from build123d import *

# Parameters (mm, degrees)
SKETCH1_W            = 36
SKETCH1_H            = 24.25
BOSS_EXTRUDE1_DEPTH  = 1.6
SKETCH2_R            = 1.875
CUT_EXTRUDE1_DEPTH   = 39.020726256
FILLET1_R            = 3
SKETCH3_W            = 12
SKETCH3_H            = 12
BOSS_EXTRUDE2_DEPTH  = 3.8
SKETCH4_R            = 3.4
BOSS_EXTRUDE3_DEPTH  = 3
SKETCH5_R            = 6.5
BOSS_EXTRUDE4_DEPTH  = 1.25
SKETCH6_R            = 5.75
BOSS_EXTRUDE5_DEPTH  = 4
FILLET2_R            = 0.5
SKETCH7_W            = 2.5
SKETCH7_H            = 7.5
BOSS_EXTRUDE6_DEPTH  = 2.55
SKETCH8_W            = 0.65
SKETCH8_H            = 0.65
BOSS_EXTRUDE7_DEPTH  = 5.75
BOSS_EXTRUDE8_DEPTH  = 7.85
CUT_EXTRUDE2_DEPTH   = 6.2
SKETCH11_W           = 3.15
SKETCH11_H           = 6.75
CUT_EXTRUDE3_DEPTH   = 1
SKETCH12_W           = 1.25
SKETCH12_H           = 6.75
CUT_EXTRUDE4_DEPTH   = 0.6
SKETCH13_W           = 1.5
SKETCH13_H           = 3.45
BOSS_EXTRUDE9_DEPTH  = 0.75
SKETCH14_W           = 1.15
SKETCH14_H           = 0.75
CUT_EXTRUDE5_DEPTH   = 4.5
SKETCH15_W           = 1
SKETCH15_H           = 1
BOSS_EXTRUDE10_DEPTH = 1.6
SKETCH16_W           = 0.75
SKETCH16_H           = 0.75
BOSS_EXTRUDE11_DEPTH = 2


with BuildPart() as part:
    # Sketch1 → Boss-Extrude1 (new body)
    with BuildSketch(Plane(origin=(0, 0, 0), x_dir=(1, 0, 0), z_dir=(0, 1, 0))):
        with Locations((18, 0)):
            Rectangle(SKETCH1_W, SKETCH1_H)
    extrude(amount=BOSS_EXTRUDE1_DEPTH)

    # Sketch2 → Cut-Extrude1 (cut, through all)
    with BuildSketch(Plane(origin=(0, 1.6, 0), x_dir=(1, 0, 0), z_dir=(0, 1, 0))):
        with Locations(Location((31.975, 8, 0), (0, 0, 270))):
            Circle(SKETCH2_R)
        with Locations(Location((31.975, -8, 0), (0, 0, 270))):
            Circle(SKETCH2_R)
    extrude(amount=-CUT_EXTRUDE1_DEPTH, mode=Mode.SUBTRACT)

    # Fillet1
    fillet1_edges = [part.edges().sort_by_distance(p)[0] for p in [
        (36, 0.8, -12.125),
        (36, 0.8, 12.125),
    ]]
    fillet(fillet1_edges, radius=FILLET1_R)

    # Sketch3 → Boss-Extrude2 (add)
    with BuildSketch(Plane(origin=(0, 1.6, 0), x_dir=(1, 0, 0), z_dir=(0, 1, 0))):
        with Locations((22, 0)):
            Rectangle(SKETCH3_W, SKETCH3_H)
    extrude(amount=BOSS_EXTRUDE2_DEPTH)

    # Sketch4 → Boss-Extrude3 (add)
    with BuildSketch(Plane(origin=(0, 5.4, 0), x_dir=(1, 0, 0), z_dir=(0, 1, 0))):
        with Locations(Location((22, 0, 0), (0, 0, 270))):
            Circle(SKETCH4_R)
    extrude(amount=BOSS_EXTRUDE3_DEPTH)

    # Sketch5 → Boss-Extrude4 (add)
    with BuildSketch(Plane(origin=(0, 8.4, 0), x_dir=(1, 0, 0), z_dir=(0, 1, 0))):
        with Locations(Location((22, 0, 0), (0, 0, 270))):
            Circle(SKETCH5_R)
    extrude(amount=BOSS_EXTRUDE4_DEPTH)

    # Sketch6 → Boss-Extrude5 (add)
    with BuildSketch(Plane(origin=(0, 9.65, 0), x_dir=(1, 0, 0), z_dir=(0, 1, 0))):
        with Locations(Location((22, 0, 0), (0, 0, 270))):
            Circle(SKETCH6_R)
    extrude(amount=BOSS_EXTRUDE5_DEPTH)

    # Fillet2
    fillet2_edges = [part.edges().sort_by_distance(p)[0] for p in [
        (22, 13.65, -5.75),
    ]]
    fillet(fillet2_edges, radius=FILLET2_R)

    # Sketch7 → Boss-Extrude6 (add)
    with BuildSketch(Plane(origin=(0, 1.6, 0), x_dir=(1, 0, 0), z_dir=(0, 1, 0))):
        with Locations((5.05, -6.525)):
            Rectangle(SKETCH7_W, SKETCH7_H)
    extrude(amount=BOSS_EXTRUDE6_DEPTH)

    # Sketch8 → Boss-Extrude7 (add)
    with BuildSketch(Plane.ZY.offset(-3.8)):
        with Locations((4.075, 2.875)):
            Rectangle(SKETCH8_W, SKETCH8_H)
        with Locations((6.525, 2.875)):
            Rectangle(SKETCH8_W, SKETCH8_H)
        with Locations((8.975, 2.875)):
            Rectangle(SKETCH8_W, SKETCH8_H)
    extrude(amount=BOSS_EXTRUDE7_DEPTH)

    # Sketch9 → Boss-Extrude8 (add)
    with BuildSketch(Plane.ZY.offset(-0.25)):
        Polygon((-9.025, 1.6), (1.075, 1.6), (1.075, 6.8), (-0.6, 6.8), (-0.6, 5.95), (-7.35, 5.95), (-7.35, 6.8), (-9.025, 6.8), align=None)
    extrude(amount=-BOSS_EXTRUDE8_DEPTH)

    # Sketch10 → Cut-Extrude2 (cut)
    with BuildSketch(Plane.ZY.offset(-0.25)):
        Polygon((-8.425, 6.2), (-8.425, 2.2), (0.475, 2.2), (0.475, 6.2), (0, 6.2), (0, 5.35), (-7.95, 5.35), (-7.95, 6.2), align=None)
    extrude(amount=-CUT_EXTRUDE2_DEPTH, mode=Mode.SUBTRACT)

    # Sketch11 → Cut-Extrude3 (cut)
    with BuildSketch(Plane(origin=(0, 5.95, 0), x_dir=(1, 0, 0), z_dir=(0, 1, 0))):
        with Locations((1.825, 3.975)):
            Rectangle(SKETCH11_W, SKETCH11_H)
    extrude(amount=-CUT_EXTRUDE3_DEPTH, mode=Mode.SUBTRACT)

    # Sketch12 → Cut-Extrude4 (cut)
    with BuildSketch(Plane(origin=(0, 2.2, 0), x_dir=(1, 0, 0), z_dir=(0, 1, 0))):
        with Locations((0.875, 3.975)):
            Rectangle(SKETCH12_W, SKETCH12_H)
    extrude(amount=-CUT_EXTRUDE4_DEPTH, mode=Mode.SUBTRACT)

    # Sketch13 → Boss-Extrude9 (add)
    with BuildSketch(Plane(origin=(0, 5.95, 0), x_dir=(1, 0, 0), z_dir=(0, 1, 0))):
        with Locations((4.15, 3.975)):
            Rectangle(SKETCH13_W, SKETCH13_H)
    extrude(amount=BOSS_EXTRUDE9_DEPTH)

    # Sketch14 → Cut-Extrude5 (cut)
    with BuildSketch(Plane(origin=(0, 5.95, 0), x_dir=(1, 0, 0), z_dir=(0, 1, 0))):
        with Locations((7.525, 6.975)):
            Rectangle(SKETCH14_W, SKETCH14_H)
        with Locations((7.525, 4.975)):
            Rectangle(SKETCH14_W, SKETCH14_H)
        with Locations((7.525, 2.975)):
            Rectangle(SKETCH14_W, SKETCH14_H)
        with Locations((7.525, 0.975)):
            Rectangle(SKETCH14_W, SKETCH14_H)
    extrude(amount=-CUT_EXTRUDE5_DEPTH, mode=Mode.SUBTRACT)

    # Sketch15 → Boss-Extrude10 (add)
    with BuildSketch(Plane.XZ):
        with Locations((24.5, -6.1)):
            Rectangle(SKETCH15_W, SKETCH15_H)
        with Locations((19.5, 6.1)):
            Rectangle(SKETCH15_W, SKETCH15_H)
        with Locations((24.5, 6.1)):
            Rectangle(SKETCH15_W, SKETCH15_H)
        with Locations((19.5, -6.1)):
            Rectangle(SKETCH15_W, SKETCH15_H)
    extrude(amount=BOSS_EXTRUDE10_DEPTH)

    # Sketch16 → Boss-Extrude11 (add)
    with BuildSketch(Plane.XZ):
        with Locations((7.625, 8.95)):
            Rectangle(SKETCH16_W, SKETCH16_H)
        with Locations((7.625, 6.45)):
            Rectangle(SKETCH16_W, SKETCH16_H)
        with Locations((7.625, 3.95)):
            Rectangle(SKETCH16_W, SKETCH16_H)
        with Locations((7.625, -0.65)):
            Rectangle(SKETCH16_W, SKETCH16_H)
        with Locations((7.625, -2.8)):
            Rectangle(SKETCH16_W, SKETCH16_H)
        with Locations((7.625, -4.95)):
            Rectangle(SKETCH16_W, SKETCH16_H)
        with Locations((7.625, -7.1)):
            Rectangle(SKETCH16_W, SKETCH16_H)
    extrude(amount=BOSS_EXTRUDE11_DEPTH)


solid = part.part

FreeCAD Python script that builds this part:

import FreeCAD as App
import Part
import Sketcher
from FreeCAD import Vector
Q = App.Units.Quantity


def edges_at(feature, points):
    """Names of the edges that pass closest to the given points."""
    edges = feature.Shape.Edges
    near = lambda p: min(range(len(edges)), key=lambda i: edges[i].distToShape(Part.Vertex(*p))[0])
    return sorted({f"Edge{near(p) + 1}" for p in points})


def add_polygon(sketch, points):
    """Adds a closed chain of lines whose ends are joined by coincident constraints."""
    first, n = sketch.GeometryCount, len(points)
    for a, b in zip(points, points[1:] + points[:1]):
        sketch.addGeometry(Part.LineSegment(App.Vector(*a, 0), App.Vector(*b, 0)), False)
    for i in range(n):
        sketch.addConstraint(Sketcher.Constraint("Coincident", first + i, 2, first + (i + 1) % n, 1))

doc = App.newDocument("Part")
body = doc.addObject("PartDesign::Body", "Body")

sketch1 = doc.addObject("Sketcher::SketchObject", "Sketch")
body.addObject(sketch1)
sketch1.AttachmentSupport = (doc.XZ_Plane, [""])
sketch1.MapMode = "FlatFace"
add_polygon(sketch1, [(0, -12), (0, 12), (36, 12), (36, -12)])
sketch1.addConstraint(Sketcher.Constraint("Vertical", 0))
sketch1.addConstraint(Sketcher.Constraint("Horizontal", 1))
sketch1.addConstraint(Sketcher.Constraint("Vertical", 2))
sketch1.addConstraint(Sketcher.Constraint("Horizontal", 3))
sketch1.addConstraint(Sketcher.Constraint("Symmetric", 0, 2, 3, 2, -1, 1))
sketch1.addConstraint(Sketcher.Constraint("DistanceX", 1, 1, 1, 2, Q("36 mm")))
sketch1.addConstraint(Sketcher.Constraint("DistanceY", 0, 1, 0, 2, Q("24.25 mm")))
pad1 = doc.addObject("PartDesign::Pad", "Pad")
body.addObject(pad1)
pad1.Profile = sketch1
pad1.Length = 1.6
pad1.Reversed = True

sketch2 = doc.addObject("Sketcher::SketchObject", "Sketch001")
body.addObject(sketch2)
sketch2.AttachmentSupport = (doc.XZ_Plane, [""])
sketch2.MapMode = "FlatFace"
sketch2.AttachmentOffset = App.Placement(Vector(0, 0, -1.6), App.Rotation())
sketch2.addGeometry(Part.Circle(Vector(32, -8, 0), Vector(0, 0, 1), 1.9), False)
sketch2.addGeometry(Part.Circle(Vector(32, 8, 0), Vector(0, 0, 1), 1.9), False)
sketch2.addConstraint(Sketcher.Constraint("Equal", 0, 1))
sketch2.addConstraint(Sketcher.Constraint("Symmetric", 0, 3, 1, 3, -1))
sketch2.addConstraint(Sketcher.Constraint("Diameter", 0, Q("3.75 mm")))
sketch2.addConstraint(Sketcher.Constraint("DistanceY", 0, 3, -1, 1, Q("8 mm")))
sketch2.addConstraint(Sketcher.Constraint("DistanceX", -1, 1, 0, 3, Q("31.975 mm")))
pocket1 = doc.addObject("PartDesign::Pocket", "Pocket")
body.addObject(pocket1)
pocket1.Profile = sketch2
pocket1.Type = "ThroughAll"
pocket1.Reversed = True
doc.recompute()

fillet = doc.addObject("PartDesign::Fillet", "Fillet")
body.addObject(fillet)
fillet.Base = (pocket1, edges_at(pocket1, [(36, 0.8, -12.125), (36, 0.8, 12.125)]))
fillet.Radius = 3

sketch3 = doc.addObject("Sketcher::SketchObject", "Sketch002")
body.addObject(sketch3)
sketch3.AttachmentSupport = (doc.XZ_Plane, [""])
sketch3.MapMode = "FlatFace"
sketch3.AttachmentOffset = App.Placement(Vector(0, 0, -1.6), App.Rotation())
add_polygon(sketch3, [(16, -6), (16, 6), (28, 6), (28, -6)])
sketch3.addConstraint(Sketcher.Constraint("Vertical", 0))
sketch3.addConstraint(Sketcher.Constraint("Horizontal", 1))
sketch3.addConstraint(Sketcher.Constraint("Vertical", 2))
sketch3.addConstraint(Sketcher.Constraint("Horizontal", 3))
sketch3.addConstraint(Sketcher.Constraint("Equal", 3, 0))
sketch3.addConstraint(Sketcher.Constraint("DistanceX", 1, 1, 1, 2, Q("12 mm")))
sketch3.addConstraint(Sketcher.Constraint("DistanceX", -1, 1, 0, 2, Q("16 mm")))
sketch3.addConstraint(Sketcher.Constraint("DistanceY", -1, 1, 0, 2, Q("6 mm")))
pad2 = doc.addObject("PartDesign::Pad", "Pad001")
body.addObject(pad2)
pad2.Profile = sketch3
pad2.Length = 3.8
pad2.Reversed = True

sketch4 = doc.addObject("Sketcher::SketchObject", "Sketch003")
body.addObject(sketch4)
sketch4.AttachmentSupport = (doc.XZ_Plane, [""])
sketch4.MapMode = "FlatFace"
sketch4.AttachmentOffset = App.Placement(Vector(0, 0, -5.4), App.Rotation())
sketch4.addGeometry(Part.Circle(Vector(22, 0, 0), Vector(0, 0, 1), 3.4), False)
sketch4.addConstraint(Sketcher.Constraint("PointOnObject", 0, 3, -1))
sketch4.addConstraint(Sketcher.Constraint("Diameter", 0, Q("6.8 mm")))
sketch4.addConstraint(Sketcher.Constraint("DistanceX", -1, 1, 0, 3, Q("22 mm")))
pad3 = doc.addObject("PartDesign::Pad", "Pad002")
body.addObject(pad3)
pad3.Profile = sketch4
pad3.Length = 3
pad3.Reversed = True

sketch5 = doc.addObject("Sketcher::SketchObject", "Sketch004")
body.addObject(sketch5)
sketch5.AttachmentSupport = (doc.XZ_Plane, [""])
sketch5.MapMode = "FlatFace"
sketch5.AttachmentOffset = App.Placement(Vector(0, 0, -8.4), App.Rotation())
sketch5.addGeometry(Part.Circle(Vector(22, 0, 0), Vector(0, 0, 1), 6), False)
sketch5.addConstraint(Sketcher.Constraint("PointOnObject", 0, 3, -1))
sketch5.addConstraint(Sketcher.Constraint("Diameter", 0, Q("13 mm")))
sketch5.addConstraint(Sketcher.Constraint("DistanceX", -1, 1, 0, 3, Q("22 mm")))
pad4 = doc.addObject("PartDesign::Pad", "Pad003")
body.addObject(pad4)
pad4.Profile = sketch5
pad4.Length = 1.25
pad4.Reversed = True

sketch6 = doc.addObject("Sketcher::SketchObject", "Sketch005")
body.addObject(sketch6)
sketch6.AttachmentSupport = (doc.XZ_Plane, [""])
sketch6.MapMode = "FlatFace"
sketch6.AttachmentOffset = App.Placement(Vector(0, 0, -9.65), App.Rotation())
sketch6.addGeometry(Part.Circle(Vector(22, 0, 0), Vector(0, 0, 1), 6), False)
sketch6.addConstraint(Sketcher.Constraint("PointOnObject", 0, 3, -1))
sketch6.addConstraint(Sketcher.Constraint("Diameter", 0, Q("11.5 mm")))
sketch6.addConstraint(Sketcher.Constraint("DistanceX", -1, 1, 0, 3, Q("22 mm")))
pad5 = doc.addObject("PartDesign::Pad", "Pad004")
body.addObject(pad5)
pad5.Profile = sketch6
pad5.Length = 4
pad5.Reversed = True
doc.recompute()

fillet2 = doc.addObject("PartDesign::Fillet", "Fillet001")
body.addObject(fillet2)
fillet2.Base = (pad5, edges_at(pad5, [(22, 13.65, -5.75)]))
fillet2.Radius = 0.5

sketch7 = doc.addObject("Sketcher::SketchObject", "Sketch006")
body.addObject(sketch7)
sketch7.AttachmentSupport = (doc.XZ_Plane, [""])
sketch7.MapMode = "FlatFace"
sketch7.AttachmentOffset = App.Placement(Vector(0, 0, -1.6), App.Rotation())
add_polygon(sketch7, [(3.8, 2.8), (3.8, 10.3), (6.3, 10.3), (6.3, 2.8)])
sketch7.addConstraint(Sketcher.Constraint("Vertical", 0))
sketch7.addConstraint(Sketcher.Constraint("Horizontal", 1))
sketch7.addConstraint(Sketcher.Constraint("Vertical", 2))
sketch7.addConstraint(Sketcher.Constraint("Horizontal", 3))
sketch7.addConstraint(Sketcher.Constraint("DistanceX", 1, 1, 1, 2, Q("2.5 mm")))
sketch7.addConstraint(Sketcher.Constraint("DistanceY", 0, 1, 0, 2, Q("7.5 mm")))
sketch7.addConstraint(Sketcher.Constraint("DistanceX", -1, 1, 0, 2, Q("3.8 mm")))
sketch7.addConstraint(Sketcher.Constraint("DistanceY", -1, 1, 0, 2, Q("10.275 mm")))
pad6 = doc.addObject("PartDesign::Pad", "Pad005")
body.addObject(pad6)
pad6.Profile = sketch7
pad6.Length = 2.55
pad6.Reversed = True

sketch8 = doc.addObject("Sketcher::SketchObject", "Sketch007")
body.addObject(sketch8)
sketch8.AttachmentSupport = (doc.YZ_Plane, [""])
sketch8.MapMode = "FlatFace"
sketch8.AttachmentOffset = App.Placement(Vector(0, 0, 3.8), App.Rotation())
add_polygon(sketch8, [(3.2, 3.8), (2.5, 3.8), (2.5, 4.4), (3.2, 4.4)])
add_polygon(sketch8, [(3.2, 6.2), (2.5, 6.2), (2.5, 6.8), (3.2, 6.8)])
add_polygon(sketch8, [(3.2, 8.7), (2.5, 8.7), (2.5, 9.3), (3.2, 9.3)])
sketch8.addConstraint(Sketcher.Constraint("Horizontal", 0))
sketch8.addConstraint(Sketcher.Constraint("Vertical", 1))
sketch8.addConstraint(Sketcher.Constraint("Horizontal", 2))
sketch8.addConstraint(Sketcher.Constraint("Vertical", 3))
sketch8.addConstraint(Sketcher.Constraint("Horizontal", 4))
sketch8.addConstraint(Sketcher.Constraint("Vertical", 5))
sketch8.addConstraint(Sketcher.Constraint("Horizontal", 6))
sketch8.addConstraint(Sketcher.Constraint("Vertical", 7))
sketch8.addConstraint(Sketcher.Constraint("Horizontal", 8))
sketch8.addConstraint(Sketcher.Constraint("Vertical", 9))
sketch8.addConstraint(Sketcher.Constraint("Horizontal", 10))
sketch8.addConstraint(Sketcher.Constraint("Vertical", 11))
sketch8.addConstraint(Sketcher.Constraint("Vertical", 1, 2, 4, 2))
sketch8.addConstraint(Sketcher.Constraint("Vertical", 3, 2, 6, 2))
sketch8.addConstraint(Sketcher.Constraint("Vertical", 5, 2, 8, 2))
sketch8.addConstraint(Sketcher.Constraint("Vertical", 7, 2, 10, 2))
sketch8.addConstraint(Sketcher.Constraint("Equal", 10, 1))
sketch8.addConstraint(Sketcher.Constraint("Equal", 3, 5))
sketch8.addConstraint(Sketcher.Constraint("Equal", 7, 9))
sketch8.addConstraint(Sketcher.Constraint("DistanceX", 0, 2, 0, 1, Q("0.65 mm")))
sketch8.addConstraint(Sketcher.Constraint("DistanceY", -1, 1, 1, 2, Q("4.4 mm")))
sketch8.addConstraint(Sketcher.Constraint("DistanceX", -1, 1, 2, 2, Q("3.2 mm")))
sketch8.addConstraint(Sketcher.Constraint("DistanceY", -1, 1, 4, 2, Q("6.2 mm")))
sketch8.addConstraint(Sketcher.Constraint("DistanceY", -1, 1, 9, 2, Q("9.3 mm")))
pad7 = doc.addObject("PartDesign::Pad", "Pad006")
body.addObject(pad7)
pad7.Profile = sketch8
pad7.Length = 5.75
pad7.Reversed = True

sketch9 = doc.addObject("Sketcher::SketchObject", "Sketch008")
body.addObject(sketch9)
sketch9.AttachmentSupport = (doc.YZ_Plane, [""])
sketch9.MapMode = "FlatFace"
sketch9.AttachmentOffset = App.Placement(Vector(0, 0, 0.25), App.Rotation())
add_polygon(sketch9, [(1.6, -9), (1.6, 1.1), (6.8, 1.1), (6.8, -0.6), (6, -0.6), (6, -7.3), (6.8, -7.3), (6.8, -9)])
sketch9.addConstraint(Sketcher.Constraint("Vertical", 0))
sketch9.addConstraint(Sketcher.Constraint("Horizontal", 1))
sketch9.addConstraint(Sketcher.Constraint("Vertical", 2))
sketch9.addConstraint(Sketcher.Constraint("Horizontal", 3))
sketch9.addConstraint(Sketcher.Constraint("Vertical", 4))
sketch9.addConstraint(Sketcher.Constraint("Horizontal", 5))
sketch9.addConstraint(Sketcher.Constraint("Vertical", 6))
sketch9.addConstraint(Sketcher.Constraint("Horizontal", 7))
sketch9.addConstraint(Sketcher.Constraint("Vertical", 2, 2, 5, 2))
sketch9.addConstraint(Sketcher.Constraint("Equal", 2, 6))
sketch9.addConstraint(Sketcher.Constraint("DistanceX", 1, 1, 1, 2, Q("5.2 mm")))
sketch9.addConstraint(Sketcher.Constraint("DistanceY", 0, 1, 0, 2, Q("10.1 mm")))
sketch9.addConstraint(Sketcher.Constraint("DistanceX", 3, 2, 3, 1, Q("0.85 mm")))
sketch9.addConstraint(Sketcher.Constraint("DistanceY", 4, 2, 4, 1, Q("6.75 mm")))
sketch9.addConstraint(Sketcher.Constraint("DistanceX", -1, 1, 0, 2, Q("1.6 mm")))
sketch9.addConstraint(Sketcher.Constraint("DistanceY", 2, 2, -1, 1, Q("0.6 mm")))
pad8 = doc.addObject("PartDesign::Pad", "Pad007")
body.addObject(pad8)
pad8.Profile = sketch9
pad8.Length = 7.85

sketch10 = doc.addObject("Sketcher::SketchObject", "Sketch009")
body.addObject(sketch10)
sketch10.AttachmentSupport = (doc.YZ_Plane, [""])
sketch10.MapMode = "FlatFace"
sketch10.AttachmentOffset = App.Placement(Vector(0, 0, 0.25), App.Rotation())
add_polygon(sketch10, [(6.2, -8.43), (2.2, -8.43), (2.2, 0.47), (6.2, 0.47), (6.2, 0), (5.35, 0), (5.35, -7.95), (6.2, -7.95)])
sketch10.addConstraint(Sketcher.Constraint("Horizontal", 0))
sketch10.addConstraint(Sketcher.Constraint("Vertical", 1))
sketch10.addConstraint(Sketcher.Constraint("Horizontal", 2))
sketch10.addConstraint(Sketcher.Constraint("Vertical", 3))
sketch10.addConstraint(Sketcher.Constraint("Horizontal", 4))
sketch10.addConstraint(Sketcher.Constraint("Vertical", 5))
sketch10.addConstraint(Sketcher.Constraint("Horizontal", 6))
sketch10.addConstraint(Sketcher.Constraint("Vertical", 7))
sketch10.addConstraint(Sketcher.Constraint("PointOnObject", 3, 2, -1))
sketch10.addConstraint(Sketcher.Constraint("Vertical", 3, 2, 6, 2))
sketch10.addConstraint(Sketcher.Constraint("Equal", 3, 7))
sketch10.addConstraint(Sketcher.Constraint("DistanceX", 0, 2, 0, 1, Q("4 mm")))
sketch10.addConstraint(Sketcher.Constraint("DistanceY", 1, 1, 1, 2, Q("8.9 mm")))
sketch10.addConstraint(Sketcher.Constraint("DistanceX", 4, 2, 4, 1, Q("0.85 mm")))
sketch10.addConstraint(Sketcher.Constraint("DistanceY", 5, 2, 5, 1, Q("7.95 mm")))
sketch10.addConstraint(Sketcher.Constraint("DistanceX", -1, 1, 0, 2, Q("2.2 mm")))
pocket2 = doc.addObject("PartDesign::Pocket", "Pocket001")
body.addObject(pocket2)
pocket2.Profile = sketch10
pocket2.Length = 6.2
pocket2.Reversed = True

sketch11 = doc.addObject("Sketcher::SketchObject", "Sketch010")
body.addObject(sketch11)
sketch11.AttachmentSupport = (doc.XZ_Plane, [""])
sketch11.MapMode = "FlatFace"
sketch11.AttachmentOffset = App.Placement(Vector(0, 0, -5.95), App.Rotation())
add_polygon(sketch11, [(0.2, -7.3), (0.2, -0.6), (3.4, -0.6), (3.4, -7.3)])
sketch11.addConstraint(Sketcher.Constraint("Vertical", 0))
sketch11.addConstraint(Sketcher.Constraint("Horizontal", 1))
sketch11.addConstraint(Sketcher.Constraint("Vertical", 2))
sketch11.addConstraint(Sketcher.Constraint("Horizontal", 3))
sketch11.addConstraint(Sketcher.Constraint("DistanceX", 1, 1, 1, 2, Q("3.15 mm")))
sketch11.addConstraint(Sketcher.Constraint("DistanceY", 0, 1, 0, 2, Q("6.75 mm")))
sketch11.addConstraint(Sketcher.Constraint("DistanceY", 0, 2, -1, 1, Q("0.6 mm")))
sketch11.addConstraint(Sketcher.Constraint("DistanceX", -1, 1, 1, 2, Q("3.4 mm")))
pocket3 = doc.addObject("PartDesign::Pocket", "Pocket002")
body.addObject(pocket3)
pocket3.Profile = sketch11
pocket3.Length = 1
pocket3.Reversed = True

sketch12 = doc.addObject("Sketcher::SketchObject", "Sketch011")
body.addObject(sketch12)
sketch12.AttachmentSupport = (doc.XZ_Plane, [""])
sketch12.MapMode = "FlatFace"
sketch12.AttachmentOffset = App.Placement(Vector(0, 0, -2.2), App.Rotation())
add_polygon(sketch12, [(0.2, -7.3), (0.2, -0.6), (1.5, -0.6), (1.5, -7.3)])
sketch12.addConstraint(Sketcher.Constraint("Vertical", 0))
sketch12.addConstraint(Sketcher.Constraint("Horizontal", 1))
sketch12.addConstraint(Sketcher.Constraint("Vertical", 2))
sketch12.addConstraint(Sketcher.Constraint("Horizontal", 3))
sketch12.addConstraint(Sketcher.Constraint("DistanceX", 1, 1, 1, 2, Q("1.25 mm")))
sketch12.addConstraint(Sketcher.Constraint("DistanceY", 0, 1, 0, 2, Q("6.75 mm")))
sketch12.addConstraint(Sketcher.Constraint("DistanceY", 0, 2, -1, 1, Q("0.6 mm")))
sketch12.addConstraint(Sketcher.Constraint("DistanceX", -1, 1, 1, 2, Q("1.5 mm")))
pocket4 = doc.addObject("PartDesign::Pocket", "Pocket003")
body.addObject(pocket4)
pocket4.Profile = sketch12
pocket4.Length = 0.6
pocket4.Reversed = True

sketch13 = doc.addObject("Sketcher::SketchObject", "Sketch012")
body.addObject(sketch13)
sketch13.AttachmentSupport = (doc.XZ_Plane, [""])
sketch13.MapMode = "FlatFace"
sketch13.AttachmentOffset = App.Placement(Vector(0, 0, -5.95), App.Rotation())
add_polygon(sketch13, [(3.4, -5.7), (3.4, -2.2), (4.9, -2.2), (4.9, -5.7)])
sketch13.addConstraint(Sketcher.Constraint("Vertical", 0))
sketch13.addConstraint(Sketcher.Constraint("Horizontal", 1))
sketch13.addConstraint(Sketcher.Constraint("Vertical", 2))
sketch13.addConstraint(Sketcher.Constraint("Horizontal", 3))
sketch13.addConstraint(Sketcher.Constraint("DistanceX", 1, 1, 1, 2, Q("1.5 mm")))
sketch13.addConstraint(Sketcher.Constraint("DistanceY", 0, 1, 0, 2, Q("3.45 mm")))
sketch13.addConstraint(Sketcher.Constraint("DistanceX", -1, 1, 0, 2, Q("3.4 mm")))
sketch13.addConstraint(Sketcher.Constraint("DistanceY", 2, 2, -1, 1, Q("5.7 mm")))
pad9 = doc.addObject("PartDesign::Pad", "Pad008")
body.addObject(pad9)
pad9.Profile = sketch13
pad9.Length = 0.75
pad9.Reversed = True

sketch14 = doc.addObject("Sketcher::SketchObject", "Sketch013")
body.addObject(sketch14)
sketch14.AttachmentSupport = (doc.XZ_Plane, [""])
sketch14.MapMode = "FlatFace"
sketch14.AttachmentOffset = App.Placement(Vector(0, 0, -5.95), App.Rotation())
add_polygon(sketch14, [(7, -7.3), (7, -6.6), (8.1, -6.6), (8.1, -7.3)])
add_polygon(sketch14, [(7, -5.3), (7, -4.6), (8.1, -4.6), (8.1, -5.3)])
add_polygon(sketch14, [(7, -3.4), (7, -2.6), (8.1, -2.6), (8.1, -3.4)])
add_polygon(sketch14, [(7, -1.4), (7, -0.6), (8.1, -0.6), (8.1, -1.4)])
sketch14.addConstraint(Sketcher.Constraint("Vertical", 0))
sketch14.addConstraint(Sketcher.Constraint("Horizontal", 1))
sketch14.addConstraint(Sketcher.Constraint("Vertical", 2))
sketch14.addConstraint(Sketcher.Constraint("Horizontal", 3))
sketch14.addConstraint(Sketcher.Constraint("Vertical", 4))
sketch14.addConstraint(Sketcher.Constraint("Horizontal", 5))
sketch14.addConstraint(Sketcher.Constraint("Vertical", 6))
sketch14.addConstraint(Sketcher.Constraint("Horizontal", 7))
sketch14.addConstraint(Sketcher.Constraint("Vertical", 8))
sketch14.addConstraint(Sketcher.Constraint("Horizontal", 9))
sketch14.addConstraint(Sketcher.Constraint("Vertical", 10))
sketch14.addConstraint(Sketcher.Constraint("Horizontal", 11))
sketch14.addConstraint(Sketcher.Constraint("Vertical", 12))
sketch14.addConstraint(Sketcher.Constraint("Horizontal", 13))
sketch14.addConstraint(Sketcher.Constraint("Vertical", 14))
sketch14.addConstraint(Sketcher.Constraint("Horizontal", 15))
sketch14.addConstraint(Sketcher.Constraint("Vertical", 3, 2, 4, 2))
sketch14.addConstraint(Sketcher.Constraint("Vertical", 2, 2, 5, 2))
sketch14.addConstraint(Sketcher.Constraint("Vertical", 7, 2, 8, 2))
sketch14.addConstraint(Sketcher.Constraint("Vertical", 6, 2, 9, 2))
sketch14.addConstraint(Sketcher.Constraint("Vertical", 11, 2, 12, 2))
sketch14.addConstraint(Sketcher.Constraint("Vertical", 10, 2, 13, 2))
sketch14.addConstraint(Sketcher.Constraint("Equal", 2, 4))
sketch14.addConstraint(Sketcher.Constraint("Equal", 6, 8))
sketch14.addConstraint(Sketcher.Constraint("Equal", 10, 12))
sketch14.addConstraint(Sketcher.Constraint("DistanceY", 0, 2, 4, 2, Q("2 mm")))
sketch14.addConstraint(Sketcher.Constraint("DistanceY", 4, 2, 8, 2, Q("2 mm")))
sketch14.addConstraint(Sketcher.Constraint("DistanceY", 8, 2, 12, 2, Q("2 mm")))
sketch14.addConstraint(Sketcher.Constraint("DistanceX", 1, 1, 1, 2, Q("1.15 mm")))
sketch14.addConstraint(Sketcher.Constraint("DistanceY", 0, 1, 0, 2, Q("0.75 mm")))
sketch14.addConstraint(Sketcher.Constraint("DistanceY", 0, 2, -1, 1, Q("6.6 mm")))
sketch14.addConstraint(Sketcher.Constraint("DistanceX", -1, 1, 1, 2, Q("8.1 mm")))
pocket5 = doc.addObject("PartDesign::Pocket", "Pocket004")
body.addObject(pocket5)
pocket5.Profile = sketch14
pocket5.Length = 4.5
pocket5.Reversed = True

sketch15 = doc.addObject("Sketcher::SketchObject", "Sketch014")
body.addObject(sketch15)
sketch15.AttachmentSupport = (doc.XZ_Plane, [""])
sketch15.MapMode = "FlatFace"
add_polygon(sketch15, [(24, -5.6), (24, -6.6), (25, -6.6), (25, -5.6)])
add_polygon(sketch15, [(19, 6.6), (19, 5.6), (20, 5.6), (20, 6.6)])
add_polygon(sketch15, [(24, 6.6), (24, 5.6), (25, 5.6), (25, 6.6)])
add_polygon(sketch15, [(19, -5.6), (19, -6.6), (20, -6.6), (20, -5.6)])
sketch15.addConstraint(Sketcher.Constraint("Vertical", 0))
sketch15.addConstraint(Sketcher.Constraint("Horizontal", 1))
sketch15.addConstraint(Sketcher.Constraint("Vertical", 2))
sketch15.addConstraint(Sketcher.Constraint("Horizontal", 3))
sketch15.addConstraint(Sketcher.Constraint("Vertical", 4))
sketch15.addConstraint(Sketcher.Constraint("Horizontal", 5))
sketch15.addConstraint(Sketcher.Constraint("Vertical", 6))
sketch15.addConstraint(Sketcher.Constraint("Horizontal", 7))
sketch15.addConstraint(Sketcher.Constraint("Vertical", 8))
sketch15.addConstraint(Sketcher.Constraint("Horizontal", 9))
sketch15.addConstraint(Sketcher.Constraint("Vertical", 10))
sketch15.addConstraint(Sketcher.Constraint("Horizontal", 11))
sketch15.addConstraint(Sketcher.Constraint("Vertical", 12))
sketch15.addConstraint(Sketcher.Constraint("Horizontal", 13))
sketch15.addConstraint(Sketcher.Constraint("Vertical", 14))
sketch15.addConstraint(Sketcher.Constraint("Horizontal", 15))
sketch15.addConstraint(Sketcher.Constraint("Symmetric", 3, 2, 8, 2, -1))
sketch15.addConstraint(Sketcher.Constraint("Symmetric", 1, 2, 10, 2, -1))
sketch15.addConstraint(Sketcher.Constraint("Symmetric", 7, 2, 12, 2, -1))
sketch15.addConstraint(Sketcher.Constraint("Symmetric", 5, 2, 14, 2, -1))
sketch15.addConstraint(Sketcher.Constraint("Horizontal", 5, 2, 8, 2))
sketch15.addConstraint(Sketcher.Constraint("Horizontal", 7, 2, 10, 2))
sketch15.addConstraint(Sketcher.Constraint("Equal", 3, 5))
sketch15.addConstraint(Sketcher.Constraint("Equal", 15, 0))
sketch15.addConstraint(Sketcher.Constraint("DistanceX", 1, 1, 1, 2, Q("1 mm")))
sketch15.addConstraint(Sketcher.Constraint("DistanceX", -1, 1, 0, 2, Q("24 mm")))
sketch15.addConstraint(Sketcher.Constraint("DistanceX", -1, 1, 4, 2, Q("19 mm")))
sketch15.addConstraint(Sketcher.Constraint("DistanceY", 0, 2, -1, 1, Q("6.6 mm")))
pad10 = doc.addObject("PartDesign::Pad", "Pad009")
body.addObject(pad10)
pad10.Profile = sketch15
pad10.Length = 1.6

sketch16 = doc.addObject("Sketcher::SketchObject", "Sketch015")
body.addObject(sketch16)
sketch16.AttachmentSupport = (doc.XZ_Plane, [""])
sketch16.MapMode = "FlatFace"
add_polygon(sketch16, [(7.2, 9.3), (7.2, 8.6), (8, 8.6), (8, 9.3)])
add_polygon(sketch16, [(7.2, 6.8), (7.2, 6.1), (8, 6.1), (8, 6.8)])
add_polygon(sketch16, [(7.2, 4.3), (7.2, 3.6), (8, 3.6), (8, 4.3)])
add_polygon(sketch16, [(7.2, -0.3), (7.2, -1), (8, -1), (8, -0.3)])
add_polygon(sketch16, [(7.2, -2.4), (7.2, -3.2), (8, -3.2), (8, -2.4)])
add_polygon(sketch16, [(7.2, -4.6), (7.2, -5.3), (8, -5.3), (8, -4.6)])
add_polygon(sketch16, [(7.2, -6.7), (7.2, -7.5), (8, -7.5), (8, -6.7)])
sketch16.addConstraint(Sketcher.Constraint("Vertical", 0))
sketch16.addConstraint(Sketcher.Constraint("Horizontal", 1))
sketch16.addConstraint(Sketcher.Constraint("Vertical", 2))
sketch16.addConstraint(Sketcher.Constraint("Horizontal", 3))
sketch16.addConstraint(Sketcher.Constraint("Vertical", 4))
sketch16.addConstraint(Sketcher.Constraint("Horizontal", 5))
sketch16.addConstraint(Sketcher.Constraint("Vertical", 6))
sketch16.addConstraint(Sketcher.Constraint("Horizontal", 7))
sketch16.addConstraint(Sketcher.Constraint("Vertical", 8))
sketch16.addConstraint(Sketcher.Constraint("Horizontal", 9))
sketch16.addConstraint(Sketcher.Constraint("Vertical", 10))
sketch16.addConstraint(Sketcher.Constraint("Horizontal", 11))
sketch16.addConstraint(Sketcher.Constraint("Vertical", 12))
sketch16.addConstraint(Sketcher.Constraint("Horizontal", 13))
sketch16.addConstraint(Sketcher.Constraint("Vertical", 14))
sketch16.addConstraint(Sketcher.Constraint("Horizontal", 15))
sketch16.addConstraint(Sketcher.Constraint("Vertical", 16))
sketch16.addConstraint(Sketcher.Constraint("Horizontal", 17))
sketch16.addConstraint(Sketcher.Constraint("Vertical", 18))
sketch16.addConstraint(Sketcher.Constraint("Horizontal", 19))
sketch16.addConstraint(Sketcher.Constraint("Vertical", 20))
sketch16.addConstraint(Sketcher.Constraint("Horizontal", 21))
sketch16.addConstraint(Sketcher.Constraint("Vertical", 22))
sketch16.addConstraint(Sketcher.Constraint("Horizontal", 23))
sketch16.addConstraint(Sketcher.Constraint("Vertical", 24))
sketch16.addConstraint(Sketcher.Constraint("Horizontal", 25))
sketch16.addConstraint(Sketcher.Constraint("Vertical", 26))
sketch16.addConstraint(Sketcher.Constraint("Horizontal", 27))
sketch16.addConstraint(Sketcher.Constraint("Vertical", 3, 2, 4, 2))
sketch16.addConstraint(Sketcher.Constraint("Vertical", 2, 2, 5, 2))
sketch16.addConstraint(Sketcher.Constraint("Vertical", 7, 2, 8, 2))
sketch16.addConstraint(Sketcher.Constraint("Vertical", 6, 2, 9, 2))
sketch16.addConstraint(Sketcher.Constraint("Vertical", 11, 2, 12, 2))
sketch16.addConstraint(Sketcher.Constraint("Vertical", 10, 2, 13, 2))
sketch16.addConstraint(Sketcher.Constraint("Vertical", 15, 2, 16, 2))
sketch16.addConstraint(Sketcher.Constraint("Vertical", 14, 2, 17, 2))
sketch16.addConstraint(Sketcher.Constraint("Vertical", 19, 2, 20, 2))
sketch16.addConstraint(Sketcher.Constraint("Vertical", 18, 2, 21, 2))
sketch16.addConstraint(Sketcher.Constraint("Vertical", 23, 2, 24, 2))
sketch16.addConstraint(Sketcher.Constraint("Vertical", 22, 2, 25, 2))
sketch16.addConstraint(Sketcher.Constraint("Equal", 27, 0))
sketch16.addConstraint(Sketcher.Constraint("Equal", 2, 4))
sketch16.addConstraint(Sketcher.Constraint("Equal", 6, 8))
sketch16.addConstraint(Sketcher.Constraint("Equal", 10, 12))
sketch16.addConstraint(Sketcher.Constraint("Equal", 14, 16))
sketch16.addConstraint(Sketcher.Constraint("Equal", 18, 20))
sketch16.addConstraint(Sketcher.Constraint("Equal", 22, 24))
sketch16.addConstraint(Sketcher.Constraint("DistanceX", -1, 1, 1, 2, Q("8 mm")))
sketch16.addConstraint(Sketcher.Constraint("DistanceY", 8, 2, 0, 2, Q("5 mm")))
sketch16.addConstraint(Sketcher.Constraint("DistanceX", 1, 1, 1, 2, Q("0.75 mm")))
sketch16.addConstraint(Sketcher.Constraint("DistanceY", 4, 2, 0, 2, Q("2.5 mm")))
sketch16.addConstraint(Sketcher.Constraint("DistanceY", 12, 2, 8, 2, Q("4.6 mm")))
sketch16.addConstraint(Sketcher.Constraint("DistanceY", 16, 2, 15, 2, Q("2.9 mm")))
sketch16.addConstraint(Sketcher.Constraint("DistanceY", 20, 2, 19, 2, Q("2.9 mm")))
sketch16.addConstraint(Sketcher.Constraint("DistanceY", 24, 2, 23, 2, Q("2.9 mm")))
sketch16.addConstraint(Sketcher.Constraint("DistanceY", -1, 1, 0, 2, Q("8.575 mm")))
pad11 = doc.addObject("PartDesign::Pad", "Pad010")
body.addObject(pad11)
pad11.Profile = sketch16
pad11.Length = 2

doc.recompute()
